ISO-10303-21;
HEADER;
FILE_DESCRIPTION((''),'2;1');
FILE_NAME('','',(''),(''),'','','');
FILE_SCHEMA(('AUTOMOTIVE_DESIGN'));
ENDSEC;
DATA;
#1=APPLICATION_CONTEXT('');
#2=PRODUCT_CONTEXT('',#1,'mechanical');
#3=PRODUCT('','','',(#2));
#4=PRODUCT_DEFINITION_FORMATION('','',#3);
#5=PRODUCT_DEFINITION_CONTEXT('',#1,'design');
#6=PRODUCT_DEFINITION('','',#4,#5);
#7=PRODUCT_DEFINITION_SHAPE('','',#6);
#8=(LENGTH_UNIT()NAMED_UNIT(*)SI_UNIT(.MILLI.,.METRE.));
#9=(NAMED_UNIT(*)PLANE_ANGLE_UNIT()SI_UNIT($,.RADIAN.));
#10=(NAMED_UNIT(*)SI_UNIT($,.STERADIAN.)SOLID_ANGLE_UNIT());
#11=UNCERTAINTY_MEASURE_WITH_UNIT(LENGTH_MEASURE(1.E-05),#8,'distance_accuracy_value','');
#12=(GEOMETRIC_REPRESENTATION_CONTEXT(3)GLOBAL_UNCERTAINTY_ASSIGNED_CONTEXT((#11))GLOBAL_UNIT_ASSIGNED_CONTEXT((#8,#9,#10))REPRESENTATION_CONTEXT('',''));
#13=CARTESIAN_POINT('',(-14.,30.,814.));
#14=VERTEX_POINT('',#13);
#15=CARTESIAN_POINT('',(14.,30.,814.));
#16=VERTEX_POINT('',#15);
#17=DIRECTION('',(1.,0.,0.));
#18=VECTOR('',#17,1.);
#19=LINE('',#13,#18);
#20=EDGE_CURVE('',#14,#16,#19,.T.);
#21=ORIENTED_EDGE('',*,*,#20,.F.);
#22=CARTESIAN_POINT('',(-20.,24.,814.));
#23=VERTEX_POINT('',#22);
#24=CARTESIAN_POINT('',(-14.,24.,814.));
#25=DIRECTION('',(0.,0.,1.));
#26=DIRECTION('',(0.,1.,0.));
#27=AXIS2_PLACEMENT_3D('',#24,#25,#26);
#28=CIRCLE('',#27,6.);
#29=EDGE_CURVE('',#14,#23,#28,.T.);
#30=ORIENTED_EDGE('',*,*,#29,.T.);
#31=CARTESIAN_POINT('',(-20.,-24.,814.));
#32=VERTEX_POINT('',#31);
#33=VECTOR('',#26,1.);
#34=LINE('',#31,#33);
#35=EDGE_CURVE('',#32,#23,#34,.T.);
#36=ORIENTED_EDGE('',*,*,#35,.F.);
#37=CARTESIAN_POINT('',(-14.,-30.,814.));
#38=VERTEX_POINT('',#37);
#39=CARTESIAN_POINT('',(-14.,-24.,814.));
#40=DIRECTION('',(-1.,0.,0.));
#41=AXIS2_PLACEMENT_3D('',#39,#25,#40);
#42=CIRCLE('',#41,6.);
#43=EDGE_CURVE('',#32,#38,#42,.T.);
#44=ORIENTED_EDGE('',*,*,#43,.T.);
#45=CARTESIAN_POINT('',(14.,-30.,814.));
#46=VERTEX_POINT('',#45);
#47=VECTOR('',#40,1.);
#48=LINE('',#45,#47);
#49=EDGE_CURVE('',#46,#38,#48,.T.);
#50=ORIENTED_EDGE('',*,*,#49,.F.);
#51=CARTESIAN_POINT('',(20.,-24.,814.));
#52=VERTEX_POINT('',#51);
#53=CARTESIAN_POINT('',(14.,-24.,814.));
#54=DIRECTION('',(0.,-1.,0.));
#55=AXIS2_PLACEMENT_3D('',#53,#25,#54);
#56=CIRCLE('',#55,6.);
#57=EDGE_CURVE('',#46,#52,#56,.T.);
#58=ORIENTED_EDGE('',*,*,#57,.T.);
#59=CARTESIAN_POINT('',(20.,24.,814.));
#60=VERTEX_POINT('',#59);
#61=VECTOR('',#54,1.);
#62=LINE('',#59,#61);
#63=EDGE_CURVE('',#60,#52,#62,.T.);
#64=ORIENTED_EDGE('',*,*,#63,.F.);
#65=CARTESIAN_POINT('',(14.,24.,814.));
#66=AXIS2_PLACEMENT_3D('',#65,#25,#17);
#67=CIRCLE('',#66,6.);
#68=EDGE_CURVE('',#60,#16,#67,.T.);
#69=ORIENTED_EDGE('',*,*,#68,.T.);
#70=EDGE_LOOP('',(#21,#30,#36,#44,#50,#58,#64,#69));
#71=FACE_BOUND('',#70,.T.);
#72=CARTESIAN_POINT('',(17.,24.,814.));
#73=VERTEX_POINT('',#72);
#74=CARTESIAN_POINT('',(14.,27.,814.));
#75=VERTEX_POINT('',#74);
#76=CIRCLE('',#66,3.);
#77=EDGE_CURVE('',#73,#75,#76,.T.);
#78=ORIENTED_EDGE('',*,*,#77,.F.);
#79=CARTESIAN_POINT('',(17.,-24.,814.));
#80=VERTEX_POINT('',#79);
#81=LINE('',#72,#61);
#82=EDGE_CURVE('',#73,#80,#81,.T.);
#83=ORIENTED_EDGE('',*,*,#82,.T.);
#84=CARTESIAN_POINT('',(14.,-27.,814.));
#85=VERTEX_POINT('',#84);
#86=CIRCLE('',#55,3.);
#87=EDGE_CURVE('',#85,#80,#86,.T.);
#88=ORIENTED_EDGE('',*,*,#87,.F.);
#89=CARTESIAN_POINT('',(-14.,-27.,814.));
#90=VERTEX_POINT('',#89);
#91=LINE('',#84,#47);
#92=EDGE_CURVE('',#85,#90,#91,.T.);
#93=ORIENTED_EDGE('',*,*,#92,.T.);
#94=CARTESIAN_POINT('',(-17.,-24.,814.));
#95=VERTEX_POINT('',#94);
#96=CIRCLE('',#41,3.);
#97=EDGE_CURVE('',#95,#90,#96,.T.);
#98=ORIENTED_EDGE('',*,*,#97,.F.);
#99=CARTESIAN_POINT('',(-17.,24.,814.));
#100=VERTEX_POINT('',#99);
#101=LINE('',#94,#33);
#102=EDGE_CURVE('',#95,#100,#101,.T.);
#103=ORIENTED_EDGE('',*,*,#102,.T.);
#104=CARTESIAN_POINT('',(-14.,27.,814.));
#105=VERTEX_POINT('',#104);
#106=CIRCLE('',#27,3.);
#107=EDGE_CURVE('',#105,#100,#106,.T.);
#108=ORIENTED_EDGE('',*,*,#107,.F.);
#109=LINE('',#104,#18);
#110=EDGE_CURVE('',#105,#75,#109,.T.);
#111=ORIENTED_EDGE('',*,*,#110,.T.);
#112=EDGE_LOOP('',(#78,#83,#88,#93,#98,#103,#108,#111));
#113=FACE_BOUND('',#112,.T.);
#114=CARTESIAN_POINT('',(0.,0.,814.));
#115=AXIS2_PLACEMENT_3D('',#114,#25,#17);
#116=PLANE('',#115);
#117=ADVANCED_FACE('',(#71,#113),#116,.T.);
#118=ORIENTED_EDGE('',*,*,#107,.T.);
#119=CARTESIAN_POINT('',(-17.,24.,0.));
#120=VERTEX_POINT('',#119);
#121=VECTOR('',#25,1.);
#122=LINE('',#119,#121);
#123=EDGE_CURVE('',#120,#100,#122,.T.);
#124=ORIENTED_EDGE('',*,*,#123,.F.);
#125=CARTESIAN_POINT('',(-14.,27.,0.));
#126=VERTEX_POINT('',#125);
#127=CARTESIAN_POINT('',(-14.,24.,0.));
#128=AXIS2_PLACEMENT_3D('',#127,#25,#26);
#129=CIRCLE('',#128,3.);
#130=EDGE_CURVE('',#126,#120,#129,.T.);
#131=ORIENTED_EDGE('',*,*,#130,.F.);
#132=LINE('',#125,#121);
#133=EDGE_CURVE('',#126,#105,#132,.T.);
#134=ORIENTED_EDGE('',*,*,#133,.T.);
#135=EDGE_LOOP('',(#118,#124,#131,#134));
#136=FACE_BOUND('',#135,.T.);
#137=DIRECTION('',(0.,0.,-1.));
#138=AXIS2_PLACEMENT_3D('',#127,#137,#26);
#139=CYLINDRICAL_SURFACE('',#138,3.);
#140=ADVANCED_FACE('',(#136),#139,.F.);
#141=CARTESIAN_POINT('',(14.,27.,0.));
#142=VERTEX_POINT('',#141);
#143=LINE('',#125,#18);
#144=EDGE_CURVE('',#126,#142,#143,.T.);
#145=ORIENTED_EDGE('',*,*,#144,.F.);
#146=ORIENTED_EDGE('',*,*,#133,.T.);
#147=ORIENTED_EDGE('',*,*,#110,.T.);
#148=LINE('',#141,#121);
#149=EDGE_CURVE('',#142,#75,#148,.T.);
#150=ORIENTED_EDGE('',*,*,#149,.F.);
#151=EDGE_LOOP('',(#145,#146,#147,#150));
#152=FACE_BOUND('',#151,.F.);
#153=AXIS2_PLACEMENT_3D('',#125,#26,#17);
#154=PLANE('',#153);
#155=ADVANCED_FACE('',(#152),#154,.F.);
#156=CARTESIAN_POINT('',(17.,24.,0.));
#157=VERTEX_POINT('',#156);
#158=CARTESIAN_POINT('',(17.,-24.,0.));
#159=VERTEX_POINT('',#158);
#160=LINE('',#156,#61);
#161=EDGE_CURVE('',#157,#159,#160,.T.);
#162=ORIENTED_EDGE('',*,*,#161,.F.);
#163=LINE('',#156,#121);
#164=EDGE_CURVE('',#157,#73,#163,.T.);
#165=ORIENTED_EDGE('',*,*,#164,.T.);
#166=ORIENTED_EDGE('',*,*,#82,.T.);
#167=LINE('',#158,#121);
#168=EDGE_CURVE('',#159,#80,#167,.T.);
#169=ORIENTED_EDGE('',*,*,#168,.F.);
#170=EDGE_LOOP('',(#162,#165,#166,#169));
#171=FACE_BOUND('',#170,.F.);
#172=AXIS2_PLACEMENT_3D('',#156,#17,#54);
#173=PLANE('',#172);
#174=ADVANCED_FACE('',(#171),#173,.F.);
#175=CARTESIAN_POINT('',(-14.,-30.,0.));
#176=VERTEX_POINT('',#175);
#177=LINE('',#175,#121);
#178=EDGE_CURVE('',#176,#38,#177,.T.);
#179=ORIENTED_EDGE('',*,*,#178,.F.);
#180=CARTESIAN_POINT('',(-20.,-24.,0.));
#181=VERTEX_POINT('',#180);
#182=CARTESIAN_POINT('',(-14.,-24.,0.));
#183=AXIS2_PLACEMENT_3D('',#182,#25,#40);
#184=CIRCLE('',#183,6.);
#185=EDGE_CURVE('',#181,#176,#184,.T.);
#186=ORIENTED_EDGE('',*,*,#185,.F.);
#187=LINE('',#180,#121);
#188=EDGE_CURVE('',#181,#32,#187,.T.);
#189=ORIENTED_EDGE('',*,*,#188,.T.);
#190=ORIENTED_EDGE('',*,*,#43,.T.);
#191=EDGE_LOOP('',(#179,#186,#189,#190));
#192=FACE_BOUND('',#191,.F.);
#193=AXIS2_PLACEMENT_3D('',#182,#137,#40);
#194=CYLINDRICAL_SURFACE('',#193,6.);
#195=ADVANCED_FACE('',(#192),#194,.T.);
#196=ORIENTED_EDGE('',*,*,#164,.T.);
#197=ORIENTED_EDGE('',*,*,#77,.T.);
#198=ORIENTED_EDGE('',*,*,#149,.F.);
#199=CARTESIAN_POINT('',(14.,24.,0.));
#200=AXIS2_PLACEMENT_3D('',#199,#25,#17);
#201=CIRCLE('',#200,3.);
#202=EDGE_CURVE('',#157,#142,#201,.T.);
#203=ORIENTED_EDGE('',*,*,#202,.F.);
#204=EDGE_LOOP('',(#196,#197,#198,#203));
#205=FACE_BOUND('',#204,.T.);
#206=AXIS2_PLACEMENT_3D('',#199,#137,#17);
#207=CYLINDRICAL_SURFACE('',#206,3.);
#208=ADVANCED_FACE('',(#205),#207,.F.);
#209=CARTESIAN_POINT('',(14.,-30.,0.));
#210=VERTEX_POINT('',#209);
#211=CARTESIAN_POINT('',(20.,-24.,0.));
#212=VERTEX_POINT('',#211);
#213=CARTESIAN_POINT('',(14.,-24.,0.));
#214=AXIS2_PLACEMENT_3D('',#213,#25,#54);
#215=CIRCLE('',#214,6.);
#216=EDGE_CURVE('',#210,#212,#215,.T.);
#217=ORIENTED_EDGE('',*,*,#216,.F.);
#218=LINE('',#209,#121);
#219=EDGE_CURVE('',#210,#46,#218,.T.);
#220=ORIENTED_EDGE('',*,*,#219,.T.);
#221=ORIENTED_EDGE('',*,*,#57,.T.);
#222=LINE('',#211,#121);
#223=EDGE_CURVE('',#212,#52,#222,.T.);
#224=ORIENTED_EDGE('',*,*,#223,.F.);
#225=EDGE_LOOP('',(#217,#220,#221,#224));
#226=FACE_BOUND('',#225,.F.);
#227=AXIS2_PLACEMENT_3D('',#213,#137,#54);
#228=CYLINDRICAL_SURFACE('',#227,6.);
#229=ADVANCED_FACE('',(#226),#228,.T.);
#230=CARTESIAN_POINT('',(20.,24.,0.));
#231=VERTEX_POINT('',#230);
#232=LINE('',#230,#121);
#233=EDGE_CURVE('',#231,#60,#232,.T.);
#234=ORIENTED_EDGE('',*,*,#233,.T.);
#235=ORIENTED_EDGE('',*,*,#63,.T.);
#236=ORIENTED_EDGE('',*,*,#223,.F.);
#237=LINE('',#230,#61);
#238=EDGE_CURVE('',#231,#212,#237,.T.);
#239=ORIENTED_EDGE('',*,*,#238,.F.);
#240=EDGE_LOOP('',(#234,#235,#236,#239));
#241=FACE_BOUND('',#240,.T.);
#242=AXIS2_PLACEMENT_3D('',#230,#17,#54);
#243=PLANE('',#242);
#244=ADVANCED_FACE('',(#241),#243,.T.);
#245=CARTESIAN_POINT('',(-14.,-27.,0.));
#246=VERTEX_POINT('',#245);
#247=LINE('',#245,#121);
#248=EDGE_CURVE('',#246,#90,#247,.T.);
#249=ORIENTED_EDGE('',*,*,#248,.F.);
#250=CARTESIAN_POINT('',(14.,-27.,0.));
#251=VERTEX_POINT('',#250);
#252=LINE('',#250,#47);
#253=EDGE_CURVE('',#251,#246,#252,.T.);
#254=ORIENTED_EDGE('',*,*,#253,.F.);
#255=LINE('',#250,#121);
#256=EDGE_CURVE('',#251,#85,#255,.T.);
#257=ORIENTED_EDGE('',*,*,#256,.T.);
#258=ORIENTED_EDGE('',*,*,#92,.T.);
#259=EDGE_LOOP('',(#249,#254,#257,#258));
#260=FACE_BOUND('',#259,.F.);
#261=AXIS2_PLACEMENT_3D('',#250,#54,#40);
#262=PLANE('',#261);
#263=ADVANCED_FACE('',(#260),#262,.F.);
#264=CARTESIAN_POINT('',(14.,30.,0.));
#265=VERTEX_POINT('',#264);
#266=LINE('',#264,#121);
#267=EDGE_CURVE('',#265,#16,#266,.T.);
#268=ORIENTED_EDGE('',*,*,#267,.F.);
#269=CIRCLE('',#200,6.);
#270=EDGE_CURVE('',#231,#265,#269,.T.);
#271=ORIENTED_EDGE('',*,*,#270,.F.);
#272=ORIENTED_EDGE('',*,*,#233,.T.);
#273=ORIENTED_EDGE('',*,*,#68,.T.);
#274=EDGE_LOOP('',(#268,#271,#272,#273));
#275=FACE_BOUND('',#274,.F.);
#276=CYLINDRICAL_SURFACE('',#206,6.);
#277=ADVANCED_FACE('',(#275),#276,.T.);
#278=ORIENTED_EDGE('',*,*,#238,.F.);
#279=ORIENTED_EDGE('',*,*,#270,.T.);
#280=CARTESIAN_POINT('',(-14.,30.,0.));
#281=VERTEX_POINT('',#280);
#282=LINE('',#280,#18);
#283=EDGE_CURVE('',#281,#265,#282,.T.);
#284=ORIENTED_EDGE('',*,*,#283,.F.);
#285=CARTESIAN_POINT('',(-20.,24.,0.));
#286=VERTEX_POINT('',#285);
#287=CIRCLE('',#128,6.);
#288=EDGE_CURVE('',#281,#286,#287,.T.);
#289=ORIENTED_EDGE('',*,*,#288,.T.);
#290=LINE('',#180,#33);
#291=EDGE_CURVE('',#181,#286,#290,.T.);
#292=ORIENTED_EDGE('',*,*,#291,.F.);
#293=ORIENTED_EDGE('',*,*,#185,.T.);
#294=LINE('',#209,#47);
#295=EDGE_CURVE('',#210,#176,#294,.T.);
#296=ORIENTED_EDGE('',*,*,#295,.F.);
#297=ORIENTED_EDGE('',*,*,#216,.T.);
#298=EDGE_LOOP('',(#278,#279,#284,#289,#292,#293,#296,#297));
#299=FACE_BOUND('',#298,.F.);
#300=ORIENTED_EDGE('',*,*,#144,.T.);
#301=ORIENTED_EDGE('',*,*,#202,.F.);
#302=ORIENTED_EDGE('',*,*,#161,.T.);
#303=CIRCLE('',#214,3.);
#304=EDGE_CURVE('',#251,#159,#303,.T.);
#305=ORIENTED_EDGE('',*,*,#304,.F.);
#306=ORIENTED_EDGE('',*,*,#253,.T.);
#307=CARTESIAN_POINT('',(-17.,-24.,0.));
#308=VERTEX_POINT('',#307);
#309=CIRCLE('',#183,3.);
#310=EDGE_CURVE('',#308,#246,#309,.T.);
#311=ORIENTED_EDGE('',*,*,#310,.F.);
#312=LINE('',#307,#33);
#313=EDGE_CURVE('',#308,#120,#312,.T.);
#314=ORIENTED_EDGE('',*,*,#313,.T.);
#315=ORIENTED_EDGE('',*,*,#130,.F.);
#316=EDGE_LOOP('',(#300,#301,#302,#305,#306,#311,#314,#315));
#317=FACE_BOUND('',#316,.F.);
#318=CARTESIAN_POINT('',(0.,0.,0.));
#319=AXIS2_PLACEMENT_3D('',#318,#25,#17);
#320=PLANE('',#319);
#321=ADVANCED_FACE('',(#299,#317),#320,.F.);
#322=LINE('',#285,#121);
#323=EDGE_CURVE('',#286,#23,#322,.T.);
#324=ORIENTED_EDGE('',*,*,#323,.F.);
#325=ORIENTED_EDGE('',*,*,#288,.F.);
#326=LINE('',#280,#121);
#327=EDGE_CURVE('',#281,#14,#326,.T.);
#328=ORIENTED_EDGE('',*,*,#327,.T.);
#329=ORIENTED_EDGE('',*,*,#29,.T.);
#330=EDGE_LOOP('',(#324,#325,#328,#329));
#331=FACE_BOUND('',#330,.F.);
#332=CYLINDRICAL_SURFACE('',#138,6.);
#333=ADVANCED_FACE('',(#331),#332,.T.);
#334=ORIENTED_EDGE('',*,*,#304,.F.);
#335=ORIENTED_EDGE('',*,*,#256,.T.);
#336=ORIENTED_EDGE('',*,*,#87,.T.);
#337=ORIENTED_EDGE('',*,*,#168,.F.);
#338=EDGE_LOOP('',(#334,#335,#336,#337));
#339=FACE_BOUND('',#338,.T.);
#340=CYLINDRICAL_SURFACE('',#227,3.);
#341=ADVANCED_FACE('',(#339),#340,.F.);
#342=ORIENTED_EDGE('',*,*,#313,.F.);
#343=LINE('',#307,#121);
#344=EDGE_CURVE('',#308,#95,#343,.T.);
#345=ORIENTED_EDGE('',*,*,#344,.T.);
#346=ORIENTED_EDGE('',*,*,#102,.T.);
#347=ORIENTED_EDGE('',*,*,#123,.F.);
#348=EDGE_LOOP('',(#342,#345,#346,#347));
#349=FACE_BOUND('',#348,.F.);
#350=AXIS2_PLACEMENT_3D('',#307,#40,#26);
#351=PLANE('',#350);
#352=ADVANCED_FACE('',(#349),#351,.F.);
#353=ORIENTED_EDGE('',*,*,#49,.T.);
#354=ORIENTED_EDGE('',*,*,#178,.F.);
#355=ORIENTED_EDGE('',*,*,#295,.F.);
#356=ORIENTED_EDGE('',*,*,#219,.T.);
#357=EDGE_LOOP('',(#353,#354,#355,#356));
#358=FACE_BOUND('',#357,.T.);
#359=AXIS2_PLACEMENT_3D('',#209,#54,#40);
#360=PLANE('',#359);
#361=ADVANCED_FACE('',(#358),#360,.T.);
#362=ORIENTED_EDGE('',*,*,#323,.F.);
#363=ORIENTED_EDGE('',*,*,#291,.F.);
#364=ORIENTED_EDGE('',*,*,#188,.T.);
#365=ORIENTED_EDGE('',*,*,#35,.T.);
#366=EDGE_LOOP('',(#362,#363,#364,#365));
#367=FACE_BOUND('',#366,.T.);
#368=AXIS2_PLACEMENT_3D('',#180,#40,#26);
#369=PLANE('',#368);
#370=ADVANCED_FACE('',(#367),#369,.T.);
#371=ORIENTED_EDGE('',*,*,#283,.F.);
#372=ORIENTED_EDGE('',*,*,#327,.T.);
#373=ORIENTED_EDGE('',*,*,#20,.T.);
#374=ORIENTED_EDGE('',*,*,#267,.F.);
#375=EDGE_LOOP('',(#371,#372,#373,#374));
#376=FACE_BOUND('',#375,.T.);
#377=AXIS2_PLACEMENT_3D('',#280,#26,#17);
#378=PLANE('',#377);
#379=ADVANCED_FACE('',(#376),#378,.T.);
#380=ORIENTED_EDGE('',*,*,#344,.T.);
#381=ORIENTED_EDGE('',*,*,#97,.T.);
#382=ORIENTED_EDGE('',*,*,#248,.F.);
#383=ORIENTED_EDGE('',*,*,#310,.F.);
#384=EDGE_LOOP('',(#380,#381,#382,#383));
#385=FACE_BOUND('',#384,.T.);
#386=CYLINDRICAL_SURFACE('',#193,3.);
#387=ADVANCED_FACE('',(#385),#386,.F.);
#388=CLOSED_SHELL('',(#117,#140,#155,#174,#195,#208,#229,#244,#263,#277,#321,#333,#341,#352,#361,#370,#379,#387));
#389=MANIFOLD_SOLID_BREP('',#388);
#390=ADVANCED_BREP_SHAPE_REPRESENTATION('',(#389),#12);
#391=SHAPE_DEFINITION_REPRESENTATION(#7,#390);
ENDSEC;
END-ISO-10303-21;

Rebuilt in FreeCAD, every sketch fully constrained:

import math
import FreeCAD as App
import Part
import Sketcher
from FreeCAD import Vector
Q = App.Units.Quantity

doc = App.newDocument("Part")
body = doc.addObject("PartDesign::Body", "Body")

# Sketch on XY plane
sketch1 = body.newObject("Sketcher::SketchObject", "Sketch")
sketch1.AttachmentSupport = (doc.getObject("XY_Plane"), [""])
sketch1.MapMode = "FlatFace"
sketch1.addGeometry([
    Part.LineSegment(Vector(-20, 24, 0), Vector(-20, -24, 0)),  # 0
    Part.ArcOfCircle(Part.Circle(Vector(-14, -24, 0), Vector(0, 0, 1), 6), math.radians(180), math.radians(270)),  # 1
    Part.LineSegment(Vector(-14, -30, 0), Vector(14, -30, 0)),  # 2
    Part.ArcOfCircle(Part.Circle(Vector(14, -24, 0), Vector(0, 0, 1), 6), math.radians(-90), math.radians(0)),  # 3
    Part.LineSegment(Vector(20, -24, 0), Vector(20, 24, 0)),  # 4
    Part.ArcOfCircle(Part.Circle(Vector(14, 24, 0), Vector(0, 0, 1), 6), math.radians(0), math.radians(90)),  # 5
    Part.LineSegment(Vector(14, 30, 0), Vector(-14, 30, 0)),  # 6
    Part.ArcOfCircle(Part.Circle(Vector(-14, 24, 0), Vector(0, 0, 1), 6), math.radians(90), math.radians(180)),  # 7
    Part.ArcOfCircle(Part.Circle(Vector(-14, 24, 0), Vector(0, 0, 1), 3), math.radians(90), math.radians(180)),  # 8
    Part.LineSegment(Vector(-14, 27, 0), Vector(14, 27, 0)),  # 9
    Part.ArcOfCircle(Part.Circle(Vector(14, 24, 0), Vector(0, 0, 1), 3), math.radians(0), math.radians(90)),  # 10
    Part.LineSegment(Vector(17, 24, 0), Vector(17, -24, 0)),  # 11
    Part.ArcOfCircle(Part.Circle(Vector(14, -24, 0), Vector(0, 0, 1), 3), math.radians(-90), math.radians(0)),  # 12
    Part.LineSegment(Vector(14, -27, 0), Vector(-14, -27, 0)),  # 13
    Part.ArcOfCircle(Part.Circle(Vector(-14, -24, 0), Vector(0, 0, 1), 3), math.radians(180), math.radians(270)),  # 14
    Part.LineSegment(Vector(-17, -24, 0), Vector(-17, 24, 0)),  # 15
], False)
sketch1.addConstraint([
    Sketcher.Constraint("Tangent", 0, 2, 1, 1),
    Sketcher.Constraint("Tangent", 1, 2, 2, 1),
    Sketcher.Constraint("Tangent", 2, 2, 3, 1),
    Sketcher.Constraint("Tangent", 3, 2, 4, 1),
    Sketcher.Constraint("Tangent", 4, 2, 5, 1),
    Sketcher.Constraint("Tangent", 5, 2, 6, 1),
    Sketcher.Constraint("Tangent", 6, 2, 7, 1),
    Sketcher.Constraint("Tangent", 7, 2, 0, 1),
    Sketcher.Constraint("Tangent", 8, 1, 9, 1),
    Sketcher.Constraint("Tangent", 9, 2, 10, 2),
    Sketcher.Constraint("Tangent", 10, 1, 11, 1),
    Sketcher.Constraint("Tangent", 11, 2, 12, 2),
    Sketcher.Constraint("Tangent", 12, 1, 13, 1),
    Sketcher.Constraint("Tangent", 13, 2, 14, 2),
    Sketcher.Constraint("Tangent", 14, 1, 15, 1),
    Sketcher.Constraint("Tangent", 15, 2, 8, 2),
    Sketcher.Constraint("Vertical", 0),
    Sketcher.Constraint("Horizontal", 2),
    Sketcher.Constraint("Vertical", 4),
    Sketcher.Constraint("Horizontal", 6),
    Sketcher.Constraint("Horizontal", 9),
    Sketcher.Constraint("Vertical", 11),
    Sketcher.Constraint("Horizontal", 13),
    Sketcher.Constraint("Vertical", 15),
    Sketcher.Constraint("Coincident", 8, 3, 7, 3),
    Sketcher.Constraint("Coincident", 10, 3, 5, 3),
    Sketcher.Constraint("Coincident", 12, 3, 3, 3),
    Sketcher.Constraint("Equal", 1, 3),
    Sketcher.Constraint("Equal", 3, 5),
    Sketcher.Constraint("Equal", 5, 7),
    Sketcher.Constraint("Equal", 12, 14),
    Sketcher.Constraint("Symmetric", 1, 3, 5, 3, -1, 1),
    Sketcher.Constraint("Radius", 1, Q("6 mm")),
    Sketcher.Constraint("Radius", 8, Q("3 mm")),
    Sketcher.Constraint("DistanceX", 0, 2, -1, 1, Q("20 mm")),
    Sketcher.Constraint("DistanceY", 1, 2, -1, 1, Q("30 mm")),
])
pad1 = body.newObject("PartDesign::Pad", "Pad")
pad1.Profile = sketch1
pad1.Length = 814

doc.recompute()
